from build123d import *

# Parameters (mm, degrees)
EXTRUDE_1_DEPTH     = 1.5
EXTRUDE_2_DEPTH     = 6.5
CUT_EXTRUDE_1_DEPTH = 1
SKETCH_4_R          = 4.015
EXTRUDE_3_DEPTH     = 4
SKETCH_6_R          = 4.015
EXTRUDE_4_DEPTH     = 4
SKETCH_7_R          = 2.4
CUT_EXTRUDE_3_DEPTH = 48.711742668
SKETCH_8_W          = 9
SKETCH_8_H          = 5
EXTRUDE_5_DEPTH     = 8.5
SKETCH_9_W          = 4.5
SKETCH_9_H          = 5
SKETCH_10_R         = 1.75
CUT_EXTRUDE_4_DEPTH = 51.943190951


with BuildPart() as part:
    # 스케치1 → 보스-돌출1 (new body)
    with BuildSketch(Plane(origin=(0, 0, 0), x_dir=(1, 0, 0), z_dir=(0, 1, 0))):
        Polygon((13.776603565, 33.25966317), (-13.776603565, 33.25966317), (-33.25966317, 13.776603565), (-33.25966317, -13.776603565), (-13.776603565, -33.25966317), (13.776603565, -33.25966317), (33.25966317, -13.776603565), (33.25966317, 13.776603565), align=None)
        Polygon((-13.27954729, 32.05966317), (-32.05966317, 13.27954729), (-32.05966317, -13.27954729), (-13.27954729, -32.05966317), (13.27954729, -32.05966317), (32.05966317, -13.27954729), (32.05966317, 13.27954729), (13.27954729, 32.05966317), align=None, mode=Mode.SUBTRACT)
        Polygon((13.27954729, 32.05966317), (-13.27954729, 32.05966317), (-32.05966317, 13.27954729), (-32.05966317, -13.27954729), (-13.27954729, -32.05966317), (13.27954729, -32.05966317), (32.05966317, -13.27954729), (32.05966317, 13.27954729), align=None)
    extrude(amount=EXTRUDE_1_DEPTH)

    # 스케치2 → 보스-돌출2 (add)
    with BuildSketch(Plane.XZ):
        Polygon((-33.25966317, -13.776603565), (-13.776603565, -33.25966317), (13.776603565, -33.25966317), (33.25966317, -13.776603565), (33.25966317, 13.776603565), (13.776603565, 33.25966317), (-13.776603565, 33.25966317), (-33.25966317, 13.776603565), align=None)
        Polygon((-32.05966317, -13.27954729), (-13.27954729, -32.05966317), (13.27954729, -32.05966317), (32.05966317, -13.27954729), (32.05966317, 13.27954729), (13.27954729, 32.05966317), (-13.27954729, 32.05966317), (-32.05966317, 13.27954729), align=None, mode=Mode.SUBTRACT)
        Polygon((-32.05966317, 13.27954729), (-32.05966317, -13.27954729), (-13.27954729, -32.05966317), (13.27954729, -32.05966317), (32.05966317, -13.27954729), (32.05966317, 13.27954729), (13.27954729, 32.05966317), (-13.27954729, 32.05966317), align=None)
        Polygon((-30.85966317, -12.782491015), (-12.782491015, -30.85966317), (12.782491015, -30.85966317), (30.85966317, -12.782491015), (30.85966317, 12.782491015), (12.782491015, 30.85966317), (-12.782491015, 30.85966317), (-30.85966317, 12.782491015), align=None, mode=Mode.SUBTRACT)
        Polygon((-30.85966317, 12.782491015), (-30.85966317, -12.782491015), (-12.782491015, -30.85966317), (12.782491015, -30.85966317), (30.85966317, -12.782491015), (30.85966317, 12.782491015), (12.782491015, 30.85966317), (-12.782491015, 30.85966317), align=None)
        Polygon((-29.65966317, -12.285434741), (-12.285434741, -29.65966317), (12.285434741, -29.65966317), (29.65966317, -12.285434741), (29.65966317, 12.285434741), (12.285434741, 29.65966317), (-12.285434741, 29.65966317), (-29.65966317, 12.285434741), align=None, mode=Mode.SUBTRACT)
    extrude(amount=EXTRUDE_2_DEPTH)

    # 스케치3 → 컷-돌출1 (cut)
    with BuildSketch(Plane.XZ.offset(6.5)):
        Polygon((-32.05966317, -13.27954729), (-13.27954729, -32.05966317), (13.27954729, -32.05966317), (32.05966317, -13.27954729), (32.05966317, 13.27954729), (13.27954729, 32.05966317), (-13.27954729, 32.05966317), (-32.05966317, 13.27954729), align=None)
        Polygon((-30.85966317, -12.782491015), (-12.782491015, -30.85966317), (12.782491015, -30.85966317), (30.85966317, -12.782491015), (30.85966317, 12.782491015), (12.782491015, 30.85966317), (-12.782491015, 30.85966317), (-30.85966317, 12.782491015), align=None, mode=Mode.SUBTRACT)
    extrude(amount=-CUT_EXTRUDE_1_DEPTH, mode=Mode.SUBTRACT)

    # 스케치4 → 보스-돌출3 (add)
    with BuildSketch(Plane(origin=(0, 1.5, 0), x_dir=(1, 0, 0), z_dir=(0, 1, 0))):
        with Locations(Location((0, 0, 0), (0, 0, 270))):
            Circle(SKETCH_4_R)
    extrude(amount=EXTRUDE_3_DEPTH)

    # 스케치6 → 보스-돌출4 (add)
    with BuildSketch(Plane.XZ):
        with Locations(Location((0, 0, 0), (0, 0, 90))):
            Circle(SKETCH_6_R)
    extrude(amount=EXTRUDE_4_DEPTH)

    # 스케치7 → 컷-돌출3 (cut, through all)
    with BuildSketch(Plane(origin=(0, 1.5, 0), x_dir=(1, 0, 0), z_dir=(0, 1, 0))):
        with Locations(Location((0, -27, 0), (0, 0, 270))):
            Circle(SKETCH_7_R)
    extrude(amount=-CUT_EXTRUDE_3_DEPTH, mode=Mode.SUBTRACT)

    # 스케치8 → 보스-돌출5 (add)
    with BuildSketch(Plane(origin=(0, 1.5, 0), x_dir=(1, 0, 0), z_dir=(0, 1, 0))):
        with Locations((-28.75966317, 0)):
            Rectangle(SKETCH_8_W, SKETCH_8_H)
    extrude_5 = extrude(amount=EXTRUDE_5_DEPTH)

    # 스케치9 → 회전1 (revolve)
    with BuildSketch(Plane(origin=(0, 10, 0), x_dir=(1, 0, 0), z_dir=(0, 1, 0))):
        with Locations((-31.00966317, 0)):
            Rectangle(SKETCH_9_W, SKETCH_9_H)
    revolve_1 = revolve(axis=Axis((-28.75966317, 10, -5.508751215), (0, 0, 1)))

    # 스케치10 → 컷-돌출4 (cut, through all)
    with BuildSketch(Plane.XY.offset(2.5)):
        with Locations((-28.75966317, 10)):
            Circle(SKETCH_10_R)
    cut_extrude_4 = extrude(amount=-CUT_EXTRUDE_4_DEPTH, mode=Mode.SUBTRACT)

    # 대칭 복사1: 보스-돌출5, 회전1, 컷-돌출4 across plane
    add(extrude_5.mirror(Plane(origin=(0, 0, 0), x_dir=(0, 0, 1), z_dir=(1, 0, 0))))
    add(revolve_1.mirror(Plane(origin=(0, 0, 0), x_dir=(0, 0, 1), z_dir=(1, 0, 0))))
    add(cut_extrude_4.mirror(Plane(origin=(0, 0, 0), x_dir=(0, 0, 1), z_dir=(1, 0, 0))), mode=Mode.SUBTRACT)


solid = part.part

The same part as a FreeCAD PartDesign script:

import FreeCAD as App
import Part
import Sketcher
Q = App.Units.Quantity

doc = App.newDocument("Part")
body = doc.addObject("PartDesign::Body", "Body")

sketch1 = body.newObject("Sketcher::SketchObject", "Sketch")
sketch1.AttachmentSupport = (doc.getObject("XZ_Plane"), [""])
sketch1.MapMode = "FlatFace"
sketch1.addGeometry(Part.LineSegment(App.Vector(14, -33, 0), App.Vector(-14, -33, 0)), False)
sketch1.addGeometry(Part.LineSegment(App.Vector(-14, -33, 0), App.Vector(-33, -14, 0)), False)
sketch1.addGeometry(Part.LineSegment(App.Vector(-33, -14, 0), App.Vector(-33, 14, 0)), False)
sketch1.addGeometry(Part.LineSegment(App.Vector(-33, 14, 0), App.Vector(-14, 33, 0)), False)
sketch1.addGeometry(Part.LineSegment(App.Vector(-14, 33, 0), App.Vector(14, 33, 0)), False)
sketch1.addGeometry(Part.LineSegment(App.Vector(14, 33, 0), App.Vector(33, 14, 0)), False)
sketch1.addGeometry(Part.LineSegment(App.Vector(33, 14, 0), App.Vector(33, -14, 0)), False)
sketch1.addGeometry(Part.LineSegment(App.Vector(33, -14, 0), App.Vector(14, -33, 0)), False)
sketch1.addConstraint(Sketcher.Constraint("Coincident", 0, 2, 1, 1))
sketch1.addConstraint(Sketcher.Constraint("Coincident", 1, 2, 2, 1))
sketch1.addConstraint(Sketcher.Constraint("Coincident", 2, 2, 3, 1))
sketch1.addConstraint(Sketcher.Constraint("Coincident", 3, 2, 4, 1))
sketch1.addConstraint(Sketcher.Constraint("Coincident", 4, 2, 5, 1))
sketch1.addConstraint(Sketcher.Constraint("Coincident", 5, 2, 6, 1))
sketch1.addConstraint(Sketcher.Constraint("Coincident", 6, 2, 7, 1))
sketch1.addConstraint(Sketcher.Constraint("Coincident", 7, 2, 0, 1))
sketch1.addConstraint(Sketcher.Constraint("Horizontal", 0))
sketch1.addConstraint(Sketcher.Constraint("Vertical", 2))
sketch1.addConstraint(Sketcher.Constraint("Horizontal", 4))
sketch1.addConstraint(Sketcher.Constraint("Vertical", 6))
sketch1.addConstraint(Sketcher.Constraint("Symmetric", 0, 2, 4, 2, -1, 1))
sketch1.addConstraint(Sketcher.Constraint("Symmetric", 1, 2, 5, 2, -1, 1))
sketch1.addConstraint(Sketcher.Constraint("Perpendicular", 1, 3))
sketch1.addConstraint(Sketcher.Constraint("Perpendicular", 5, 7))
sketch1.addConstraint(Sketcher.Constraint("Horizontal", 2, 2, 5, 2))
sketch1.addConstraint(Sketcher.Constraint("Horizontal", 1, 2, 6, 2))
sketch1.addConstraint(Sketcher.Constraint("Vertical", 0, 2, 3, 2))
sketch1.addConstraint(Sketcher.Constraint("Equal", 4, 2))
sketch1.addConstraint(Sketcher.Constraint("DistanceX", 0, 2, 0, 1, Q("27.553207 mm")))
sketch1.addConstraint(Sketcher.Constraint("DistanceX", 1, 2, 0, 2, Q("19.48306 mm")))
pad1 = body.newObject("PartDesign::Pad", "Pad")
pad1.Profile = sketch1
pad1.Length = 1.5
pad1.Reversed = True

sketch2 = body.newObject("Sketcher::SketchObject", "Sketch001")
sketch2.AttachmentSupport = (doc.getObject("XZ_Plane"), [""])
sketch2.MapMode = "FlatFace"
sketch2.addGeometry(Part.LineSegment(App.Vector(-33, -14, 0), App.Vector(-14, -33, 0)), False)
sketch2.addGeometry(Part.LineSegment(App.Vector(-14, -33, 0), App.Vector(14, -33, 0)), False)
sketch2.addGeometry(Part.LineSegment(App.Vector(14, -33, 0), App.Vector(33, -14, 0)), False)
sketch2.addGeometry(Part.LineSegment(App.Vector(33, -14, 0), App.Vector(33, 14, 0)), False)
sketch2.addGeometry(Part.LineSegment(App.Vector(33, 14, 0), App.Vector(14, 33, 0)), False)
sketch2.addGeometry(Part.LineSegment(App.Vector(14, 33, 0), App.Vector(-14, 33, 0)), False)
sketch2.addGeometry(Part.LineSegment(App.Vector(-14, 33, 0), App.Vector(-33, 14, 0)), False)
sketch2.addGeometry(Part.LineSegment(App.Vector(-33, 14, 0), App.Vector(-33, -14, 0)), False)
sketch2.addGeometry(Part.LineSegment(App.Vector(-12, -30, 0), App.Vector(-30, -12, 0)), False)
sketch2.addGeometry(Part.LineSegment(App.Vector(-30, -12, 0), App.Vector(-30, 12, 0)), False)
sketch2.addGeometry(Part.LineSegment(App.Vector(-30, 12, 0), App.Vector(-12, 30, 0)), False)
sketch2.addGeometry(Part.LineSegment(App.Vector(-12, 30, 0), App.Vector(12, 30, 0)), False)
sketch2.addGeometry(Part.LineSegment(App.Vector(12, 30, 0), App.Vector(30, 12, 0)), False)
sketch2.addGeometry(Part.LineSegment(App.Vector(30, 12, 0), App.Vector(30, -12, 0)), False)
sketch2.addGeometry(Part.LineSegment(App.Vector(30, -12, 0), App.Vector(12, -30, 0)), False)
sketch2.addGeometry(Part.LineSegment(App.Vector(12, -30, 0), App.Vector(-12, -30, 0)), False)
sketch2.addConstraint(Sketcher.Constraint("Coincident", 0, 2, 1, 1))
sketch2.addConstraint(Sketcher.Constraint("Coincident", 1, 2, 2, 1))
sketch2.addConstraint(Sketcher.Constraint("Coincident", 2, 2, 3, 1))
sketch2.addConstraint(Sketcher.Constraint("Coincident", 3, 2, 4, 1))
sketch2.addConstraint(Sketcher.Constraint("Coincident", 4, 2, 5, 1))
sketch2.addConstraint(Sketcher.Constraint("Coincident", 5, 2, 6, 1))
sketch2.addConstraint(Sketcher.Constraint("Coincident", 6, 2, 7, 1))
sketch2.addConstraint(Sketcher.Constraint("Coincident", 7, 2, 0, 1))
sketch2.addConstraint(Sketcher.Constraint("Coincident", 8, 2, 9, 1))
sketch2.addConstraint(Sketcher.Constraint("Coincident", 9, 2, 10, 1))
sketch2.addConstraint(Sketcher.Constraint("Coincident", 10, 2, 11, 1))
sketch2.addConstraint(Sketcher.Constraint("Coincident", 11, 2, 12, 1))
sketch2.addConstraint(Sketcher.Constraint("Coincident", 12, 2, 13, 1))
sketch2.addConstraint(Sketcher.Constraint("Coincident", 13, 2, 14, 1))
sketch2.addConstraint(Sketcher.Constraint("Coincident", 14, 2, 15, 1))
sketch2.addConstraint(Sketcher.Constraint("Coincident", 15, 2, 8, 1))
sketch2.addConstraint(Sketcher.Constraint("Horizontal", 1))
sketch2.addConstraint(Sketcher.Constraint("Vertical", 3))
sketch2.addConstraint(Sketcher.Constraint("Horizontal", 5))
sketch2.addConstraint(Sketcher.Constraint("Vertical", 7))
sketch2.addConstraint(Sketcher.Constraint("Vertical", 9))
sketch2.addConstraint(Sketcher.Constraint("Horizontal", 11))
sketch2.addConstraint(Sketcher.Constraint("Vertical", 13))
sketch2.addConstraint(Sketcher.Constraint("Horizontal", 15))
sketch2.addConstraint(Sketcher.Constraint("Symmetric", 0, 2, 4, 2, -1, 1))
sketch2.addConstraint(Sketcher.Constraint("Symmetric", 2, 2, 6, 2, -1, 1))
sketch2.addConstraint(Sketcher.Constraint("Symmetric", 8, 2, 12, 2, -1, 1))
sketch2.addConstraint(Sketcher.Constraint("Symmetric", 10, 2, 14, 2, -1, 1))
sketch2.addConstraint(Sketcher.Constraint("Perpendicular", 0, 2))
sketch2.addConstraint(Sketcher.Constraint("Perpendicular", 2, 4))
sketch2.addConstraint(Sketcher.Constraint("Perpendicular", 4, 6))
sketch2.addConstraint(Sketcher.Constraint("Perpendicular", 6, 8))
sketch2.addConstraint(Sketcher.Constraint("Perpendicular", 8, 10))
sketch2.addConstraint(Sketcher.Constraint("Perpendicular", 10, 12))
sketch2.addConstraint(Sketcher.Constraint("Perpendicular", 12, 14))
sketch2.addConstraint(Sketcher.Constraint("Horizontal", 3, 2, 6, 2))
sketch2.addConstraint(Sketcher.Constraint("Horizontal", 9, 2, 12, 2))
sketch2.addConstraint(Sketcher.Constraint("Vertical", 1, 2, 4, 2))
sketch2.addConstraint(Sketcher.Constraint("Equal", 5, 3))
sketch2.addConstraint(Sketcher.Constraint("Equal", 15, 9))
sketch2.addConstraint(Sketcher.Constraint("DistanceX", 7, 2, 8, 2, Q("3.6 mm")))
sketch2.addConstraint(Sketcher.Constraint("DistanceX", 11, 1, 11, 2, Q("24.570869 mm")))
sketch2.addConstraint(Sketcher.Constraint("Distance", 8, Q("24.570869 mm")))
sketch2.addConstraint(Sketcher.Constraint("DistanceX", 1, 1, 1, 2, Q("27.553207 mm")))
pad2 = body.newObject("PartDesign::Pad", "Pad001")
pad2.Profile = sketch2
pad2.Length = 6.5

sketch3 = body.newObject("Sketcher::SketchObject", "Sketch002")
sketch3.AttachmentSupport = (doc.getObject("XZ_Plane"), [""])
sketch3.MapMode = "FlatFace"
sketch3.AttachmentOffset = App.Placement(App.Vector(0, 0, 6.5), App.Rotation())
sketch3.addGeometry(Part.LineSegment(App.Vector(-32, -13, 0), App.Vector(-13, -32, 0)), False)
sketch3.addGeometry(Part.LineSegment(App.Vector(-13, -32, 0), App.Vector(13, -32, 0)), False)
sketch3.addGeometry(Part.LineSegment(App.Vector(13, -32, 0), App.Vector(32, -13, 0)), False)
sketch3.addGeometry(Part.LineSegment(App.Vector(32, -13, 0), App.Vector(32, 13, 0)), False)
sketch3.addGeometry(Part.LineSegment(App.Vector(32, 13, 0), App.Vector(13, 32, 0)), False)
sketch3.addGeometry(Part.LineSegment(App.Vector(13, 32, 0), App.Vector(-13, 32, 0)), False)
sketch3.addGeometry(Part.LineSegment(App.Vector(-13, 32, 0), App.Vector(-32, 13, 0)), False)
sketch3.addGeometry(Part.LineSegment(App.Vector(-32, 13, 0), App.Vector(-32, -13, 0)), False)
sketch3.addGeometry(Part.LineSegment(App.Vector(-13, -31, 0), App.Vector(-31, -13, 0)), False)
sketch3.addGeometry(Part.LineSegment(App.Vector(-31, -13, 0), App.Vector(-31, 13, 0)), False)
sketch3.addGeometry(Part.LineSegment(App.Vector(-31, 13, 0), App.Vector(-13, 31, 0)), False)
sketch3.addGeometry(Part.LineSegment(App.Vector(-13, 31, 0), App.Vector(13, 31, 0)), False)
sketch3.addGeometry(Part.LineSegment(App.Vector(13, 31, 0), App.Vector(31, 13, 0)), False)
sketch3.addGeometry(Part.LineSegment(App.Vector(31, 13, 0), App.Vector(31, -13, 0)), False)
sketch3.addGeometry(Part.LineSegment(App.Vector(31, -13, 0), App.Vector(13, -31, 0)), False)
sketch3.addGeometry(Part.LineSegment(App.Vector(13, -31, 0), App.Vector(-13, -31, 0)), False)
sketch3.addConstraint(Sketcher.Constraint("Coincident", 0, 2, 1, 1))
sketch3.addConstraint(Sketcher.Constraint("Coincident", 1, 2, 2, 1))
sketch3.addConstraint(Sketcher.Constraint("Coincident", 2, 2, 3, 1))
sketch3.addConstraint(Sketcher.Constraint("Coincident", 3, 2, 4, 1))
sketch3.addConstraint(Sketcher.Constraint("Coincident", 4, 2, 5, 1))
sketch3.addConstraint(Sketcher.Constraint("Coincident", 5, 2, 6, 1))
sketch3.addConstraint(Sketcher.Constraint("Coincident", 6, 2, 7, 1))
sketch3.addConstraint(Sketcher.Constraint("Coincident", 7, 2, 0, 1))
sketch3.addConstraint(Sketcher.Constraint("Coincident", 8, 2, 9, 1))
sketch3.addConstraint(Sketcher.Constraint("Coincident", 9, 2, 10, 1))
sketch3.addConstraint(Sketcher.Constraint("Coincident", 10, 2, 11, 1))
sketch3.addConstraint(Sketcher.Constraint("Coincident", 11, 2, 12, 1))
sketch3.addConstraint(Sketcher.Constraint("Coincident", 12, 2, 13, 1))
sketch3.addConstraint(Sketcher.Constraint("Coincident", 13, 2, 14, 1))
sketch3.addConstraint(Sketcher.Constraint("Coincident", 14, 2, 15, 1))
sketch3.addConstraint(Sketcher.Constraint("Coincident", 15, 2, 8, 1))
sketch3.addConstraint(Sketcher.Constraint("Horizontal", 1))
sketch3.addConstraint(Sketcher.Constraint("Vertical", 3))
sketch3.addConstraint(Sketcher.Constraint("Horizontal", 5))
sketch3.addConstraint(Sketcher.Constraint("Vertical", 7))
sketch3.addConstraint(Sketcher.Constraint("Vertical", 9))
sketch3.addConstraint(Sketcher.Constraint("Horizontal", 11))
sketch3.addConstraint(Sketcher.Constraint("Vertical", 13))
sketch3.addConstraint(Sketcher.Constraint("Horizontal", 15))
sketch3.addConstraint(Sketcher.Constraint("Symmetric", 0, 2, 4, 2, -1, 1))
sketch3.addConstraint(Sketcher.Constraint("Symmetric", 2, 2, 6, 2, -1, 1))
sketch3.addConstraint(Sketcher.Constraint("Symmetric", 8, 2, 12, 2, -1, 1))
sketch3.addConstraint(Sketcher.Constraint("Symmetric", 10, 2, 14, 2, -1, 1))
sketch3.addConstraint(Sketcher.Constraint("Perpendicular", 0, 2))
sketch3.addConstraint(Sketcher.Constraint("Perpendicular", 2, 4))
sketch3.addConstraint(Sketcher.Constraint("Perpendicular", 4, 6))
sketch3.addConstraint(Sketcher.Constraint("Perpendicular", 6, 8))
sketch3.addConstraint(Sketcher.Constraint("Perpendicular", 8, 10))
sketch3.addConstraint(Sketcher.Constraint("Perpendicular", 10, 12))
sketch3.addConstraint(Sketcher.Constraint("Perpendicular", 12, 14))
sketch3.addConstraint(Sketcher.Constraint("Horizontal", 3, 2, 6, 2))
sketch3.addConstraint(Sketcher.Constraint("Horizontal", 9, 2, 12, 2))
sketch3.addConstraint(Sketcher.Constraint("Vertical", 1, 2, 4, 2))
sketch3.addConstraint(Sketcher.Constraint("Equal", 5, 3))
sketch3.addConstraint(Sketcher.Constraint("Equal", 15, 9))
sketch3.addConstraint(Sketcher.Constraint("DistanceX", 7, 2, 8, 2, Q("1.2 mm")))
sketch3.addConstraint(Sketcher.Constraint("DistanceX", 1, 1, 1, 2, Q("26.559095 mm")))
sketch3.addConstraint(Sketcher.Constraint("DistanceX", 11, 1, 11, 2, Q("25.564982 mm")))
sketch3.addConstraint(Sketcher.Constraint("DistanceX", 0, 2, 2, 2, Q("45.33921 mm")))
pocket1 = body.newObject("PartDesign::Pocket", "Pocket")
pocket1.Profile = sketch3
pocket1.Length = 1

sketch4 = body.newObject("Sketcher::SketchObject", "Sketch003")
sketch4.AttachmentSupport = (doc.getObject("XZ_Plane"), [""])
sketch4.MapMode = "FlatFace"
sketch4.AttachmentOffset = App.Placement(App.Vector(0, 0, -1.5), App.Rotation())
sketch4.addGeometry(Part.Circle(App.Vector(0, 0, 0), App.Vector(0, 0, 1), 4), False)
sketch4.addConstraint(Sketcher.Constraint("Coincident", 0, 3, -1, 1))
sketch4.addConstraint(Sketcher.Constraint("Diameter", 0, Q("8.03 mm")))
pad3 = body.newObject("PartDesign::Pad", "Pad002")
pad3.Profile = sketch4
pad3.Length = 4
pad3.Reversed = True

sketch5 = body.newObject("Sketcher::SketchObject", "Sketch004")
sketch5.AttachmentSupport = (doc.getObject("XZ_Plane"), [""])
sketch5.MapMode = "FlatFace"
sketch5.addGeometry(Part.Circle(App.Vector(0, 0, 0), App.Vector(0, 0, 1), 4), False)
sketch5.addConstraint(Sketcher.Constraint("Coincident", 0, 3, -1, 1))
sketch5.addConstraint(Sketcher.Constraint("Diameter", 0, Q("8.03 mm")))
pad4 = body.newObject("PartDesign::Pad", "Pad003")
pad4.Profile = sketch5
pad4.Length = 4

sketch6 = body.newObject("Sketcher::SketchObject", "Sketch005")
sketch6.AttachmentSupport = (doc.getObject("XZ_Plane"), [""])
sketch6.MapMode = "FlatFace"
sketch6.AttachmentOffset = App.Placement(App.Vector(0, 0, -1.5), App.Rotation())
sketch6.addGeometry(Part.Circle(App.Vector(0, 27, 0), App.Vector(0, 0, 1), 2.4), False)
sketch6.addConstraint(Sketcher.Constraint("PointOnObject", 0, 3, -2))
sketch6.addConstraint(Sketcher.Constraint("Diameter", 0, Q("4.8 mm")))
sketch6.addConstraint(Sketcher.Constraint("DistanceY", -1, 1, 0, 3, Q("27 mm")))
pocket2 = body.newObject("PartDesign::Pocket", "Pocket001")
pocket2.Profile = sketch6
pocket2.Type = "ThroughAll"
pocket2.Reversed = True

sketch7 = body.newObject("Sketcher::SketchObject", "Sketch006")
sketch7.AttachmentSupport = (doc.getObject("XZ_Plane"), [""])
sketch7.MapMode = "FlatFace"
sketch7.AttachmentOffset = App.Placement(App.Vector(0, 0, -1.5), App.Rotation())
sketch7.addGeometry(Part.LineSegment(App.Vector(-33, -2, 0), App.Vector(-33, 2, 0)), False)
sketch7.addGeometry(Part.LineSegment(App.Vector(-33, 2, 0), App.Vector(-24, 2, 0)), False)
sketch7.addGeometry(Part.LineSegment(App.Vector(-24, 2, 0), App.Vector(-24, -2, 0)), False)
sketch7.addGeometry(Part.LineSegment(App.Vector(-24, -2, 0), App.Vector(-33, -2, 0)), False)
sketch7.addConstraint(Sketcher.Constraint("Coincident", 0, 2, 1, 1))
sketch7.addConstraint(Sketcher.Constraint("Coincident", 1, 2, 2, 1))
sketch7.addConstraint(Sketcher.Constraint("Coincident", 2, 2, 3, 1))
sketch7.addConstraint(Sketcher.Constraint("Coincident", 3, 2, 0, 1))
sketch7.addConstraint(Sketcher.Constraint("Vertical", 0))
sketch7.addConstraint(Sketcher.Constraint("Horizontal", 1))
sketch7.addConstraint(Sketcher.Constraint("Vertical", 2))
sketch7.addConstraint(Sketcher.Constraint("Horizontal", 3))
sketch7.addConstraint(Sketcher.Constraint("DistanceX", 1, 1, 1, 2, Q("9 mm")))
sketch7.addConstraint(Sketcher.Constraint("DistanceY", 0, 1, 0, 2, Q("5 mm")))
sketch7.addConstraint(Sketcher.Constraint("DistanceY", -1, 1, 0, 2, Q("2.5 mm")))
sketch7.addConstraint(Sketcher.Constraint("DistanceX", 0, 2, -1, 1, Q("33.259663 mm")))
pad5 = body.newObject("PartDesign::Pad", "Pad004")
pad5.Profile = sketch7
pad5.Length = 8.5
pad5.Reversed = True

sketch8 = body.newObject("Sketcher::SketchObject", "Sketch007")
sketch8.AttachmentSupport = (doc.getObject("XZ_Plane"), [""])
sketch8.MapMode = "FlatFace"
sketch8.AttachmentOffset = App.Placement(App.Vector(0, 0, -10), App.Rotation())
sketch8.addGeometry(Part.LineSegment(App.Vector(-33.3, -2.5, 0), App.Vector(-33.3, 2.5, 0)), False)
sketch8.addGeometry(Part.LineSegment(App.Vector(-33.3, 2.5, 0), App.Vector(-28.8, 2.5, 0)), False)
sketch8.addGeometry(Part.LineSegment(App.Vector(-28.8, 2.5, 0), App.Vector(-28.8, -2.5, 0)), False)
sketch8.addGeometry(Part.LineSegment(App.Vector(-28.8, -2.5, 0), App.Vector(-33.3, -2.5, 0)), False)
sketch8.addGeometry(Part.LineSegment(App.Vector(-28.8, -2.5, 0), App.Vector(-28.8, 2.5, 0)), True)
sketch8.addConstraint(Sketcher.Constraint("Coincident", 0, 2, 1, 1))
sketch8.addConstraint(Sketcher.Constraint("Coincident", 1, 2, 2, 1))
sketch8.addConstraint(Sketcher.Constraint("Coincident", 2, 2, 3, 1))
sketch8.addConstraint(Sketcher.Constraint("Coincident", 3, 2, 0, 1))
sketch8.addConstraint(Sketcher.Constraint("Vertical", 0))
sketch8.addConstraint(Sketcher.Constraint("Horizontal", 1))
sketch8.addConstraint(Sketcher.Constraint("Vertical", 2))
sketch8.addConstraint(Sketcher.Constraint("Horizontal", 3))
sketch8.addConstraint(Sketcher.Constraint("Vertical", 4))
sketch8.addConstraint(Sketcher.Constraint("Coincident", 4, 1, 2, 2))
sketch8.addConstraint(Sketcher.Constraint("Horizontal", 0, 2, 4, 2))
sketch8.addConstraint(Sketcher.Constraint("DistanceY", 0, 1, 0, 2, Q("5 mm")))
sketch8.addConstraint(Sketcher.Constraint("DistanceX", 1, 1, 1, 2, Q("4.5 mm")))
sketch8.addConstraint(Sketcher.Constraint("DistanceY", -1, 1, 0, 2, Q("2.5 mm")))
sketch8.addConstraint(Sketcher.Constraint("DistanceX", 0, 2, -1, 1, Q("33.259663 mm")))
revolution = body.newObject("PartDesign::Revolution", "Revolution")
revolution.Profile = sketch8
revolution.ReferenceAxis = (sketch8, ["Axis0"])
revolution.Angle = 360

sketch9 = body.newObject("Sketcher::SketchObject", "Sketch008")
sketch9.AttachmentSupport = (doc.getObject("XY_Plane"), [""])
sketch9.MapMode = "FlatFace"
sketch9.AttachmentOffset = App.Placement(App.Vector(0, 0, 2.5), App.Rotation())
sketch9.addGeometry(Part.Circle(App.Vector(-28.8, 10, 0), App.Vector(0, 0, 1), 1.8), False)
sketch9.addConstraint(Sketcher.Constraint("Diameter", 0, Q("3.5 mm")))
sketch9.addConstraint(Sketcher.Constraint("DistanceY", -1, 1, 0, 3, Q("10 mm")))
sketch9.addConstraint(Sketcher.Constraint("DistanceX", 0, 3, -1, 1, Q("28.759663 mm")))
pocket3 = body.newObject("PartDesign::Pocket", "Pocket002")
pocket3.Profile = sketch9
pocket3.Type = "ThroughAll"
doc.recompute()

mirrored = body.newObject("PartDesign::Mirrored", "Mirrored")
mirrored.Originals = [pad5, revolution, pocket3]
mirrored.MirrorPlane = (doc.getObject("YZ_Plane"), [""])
body.Tip = mirrored

doc.recompute()
